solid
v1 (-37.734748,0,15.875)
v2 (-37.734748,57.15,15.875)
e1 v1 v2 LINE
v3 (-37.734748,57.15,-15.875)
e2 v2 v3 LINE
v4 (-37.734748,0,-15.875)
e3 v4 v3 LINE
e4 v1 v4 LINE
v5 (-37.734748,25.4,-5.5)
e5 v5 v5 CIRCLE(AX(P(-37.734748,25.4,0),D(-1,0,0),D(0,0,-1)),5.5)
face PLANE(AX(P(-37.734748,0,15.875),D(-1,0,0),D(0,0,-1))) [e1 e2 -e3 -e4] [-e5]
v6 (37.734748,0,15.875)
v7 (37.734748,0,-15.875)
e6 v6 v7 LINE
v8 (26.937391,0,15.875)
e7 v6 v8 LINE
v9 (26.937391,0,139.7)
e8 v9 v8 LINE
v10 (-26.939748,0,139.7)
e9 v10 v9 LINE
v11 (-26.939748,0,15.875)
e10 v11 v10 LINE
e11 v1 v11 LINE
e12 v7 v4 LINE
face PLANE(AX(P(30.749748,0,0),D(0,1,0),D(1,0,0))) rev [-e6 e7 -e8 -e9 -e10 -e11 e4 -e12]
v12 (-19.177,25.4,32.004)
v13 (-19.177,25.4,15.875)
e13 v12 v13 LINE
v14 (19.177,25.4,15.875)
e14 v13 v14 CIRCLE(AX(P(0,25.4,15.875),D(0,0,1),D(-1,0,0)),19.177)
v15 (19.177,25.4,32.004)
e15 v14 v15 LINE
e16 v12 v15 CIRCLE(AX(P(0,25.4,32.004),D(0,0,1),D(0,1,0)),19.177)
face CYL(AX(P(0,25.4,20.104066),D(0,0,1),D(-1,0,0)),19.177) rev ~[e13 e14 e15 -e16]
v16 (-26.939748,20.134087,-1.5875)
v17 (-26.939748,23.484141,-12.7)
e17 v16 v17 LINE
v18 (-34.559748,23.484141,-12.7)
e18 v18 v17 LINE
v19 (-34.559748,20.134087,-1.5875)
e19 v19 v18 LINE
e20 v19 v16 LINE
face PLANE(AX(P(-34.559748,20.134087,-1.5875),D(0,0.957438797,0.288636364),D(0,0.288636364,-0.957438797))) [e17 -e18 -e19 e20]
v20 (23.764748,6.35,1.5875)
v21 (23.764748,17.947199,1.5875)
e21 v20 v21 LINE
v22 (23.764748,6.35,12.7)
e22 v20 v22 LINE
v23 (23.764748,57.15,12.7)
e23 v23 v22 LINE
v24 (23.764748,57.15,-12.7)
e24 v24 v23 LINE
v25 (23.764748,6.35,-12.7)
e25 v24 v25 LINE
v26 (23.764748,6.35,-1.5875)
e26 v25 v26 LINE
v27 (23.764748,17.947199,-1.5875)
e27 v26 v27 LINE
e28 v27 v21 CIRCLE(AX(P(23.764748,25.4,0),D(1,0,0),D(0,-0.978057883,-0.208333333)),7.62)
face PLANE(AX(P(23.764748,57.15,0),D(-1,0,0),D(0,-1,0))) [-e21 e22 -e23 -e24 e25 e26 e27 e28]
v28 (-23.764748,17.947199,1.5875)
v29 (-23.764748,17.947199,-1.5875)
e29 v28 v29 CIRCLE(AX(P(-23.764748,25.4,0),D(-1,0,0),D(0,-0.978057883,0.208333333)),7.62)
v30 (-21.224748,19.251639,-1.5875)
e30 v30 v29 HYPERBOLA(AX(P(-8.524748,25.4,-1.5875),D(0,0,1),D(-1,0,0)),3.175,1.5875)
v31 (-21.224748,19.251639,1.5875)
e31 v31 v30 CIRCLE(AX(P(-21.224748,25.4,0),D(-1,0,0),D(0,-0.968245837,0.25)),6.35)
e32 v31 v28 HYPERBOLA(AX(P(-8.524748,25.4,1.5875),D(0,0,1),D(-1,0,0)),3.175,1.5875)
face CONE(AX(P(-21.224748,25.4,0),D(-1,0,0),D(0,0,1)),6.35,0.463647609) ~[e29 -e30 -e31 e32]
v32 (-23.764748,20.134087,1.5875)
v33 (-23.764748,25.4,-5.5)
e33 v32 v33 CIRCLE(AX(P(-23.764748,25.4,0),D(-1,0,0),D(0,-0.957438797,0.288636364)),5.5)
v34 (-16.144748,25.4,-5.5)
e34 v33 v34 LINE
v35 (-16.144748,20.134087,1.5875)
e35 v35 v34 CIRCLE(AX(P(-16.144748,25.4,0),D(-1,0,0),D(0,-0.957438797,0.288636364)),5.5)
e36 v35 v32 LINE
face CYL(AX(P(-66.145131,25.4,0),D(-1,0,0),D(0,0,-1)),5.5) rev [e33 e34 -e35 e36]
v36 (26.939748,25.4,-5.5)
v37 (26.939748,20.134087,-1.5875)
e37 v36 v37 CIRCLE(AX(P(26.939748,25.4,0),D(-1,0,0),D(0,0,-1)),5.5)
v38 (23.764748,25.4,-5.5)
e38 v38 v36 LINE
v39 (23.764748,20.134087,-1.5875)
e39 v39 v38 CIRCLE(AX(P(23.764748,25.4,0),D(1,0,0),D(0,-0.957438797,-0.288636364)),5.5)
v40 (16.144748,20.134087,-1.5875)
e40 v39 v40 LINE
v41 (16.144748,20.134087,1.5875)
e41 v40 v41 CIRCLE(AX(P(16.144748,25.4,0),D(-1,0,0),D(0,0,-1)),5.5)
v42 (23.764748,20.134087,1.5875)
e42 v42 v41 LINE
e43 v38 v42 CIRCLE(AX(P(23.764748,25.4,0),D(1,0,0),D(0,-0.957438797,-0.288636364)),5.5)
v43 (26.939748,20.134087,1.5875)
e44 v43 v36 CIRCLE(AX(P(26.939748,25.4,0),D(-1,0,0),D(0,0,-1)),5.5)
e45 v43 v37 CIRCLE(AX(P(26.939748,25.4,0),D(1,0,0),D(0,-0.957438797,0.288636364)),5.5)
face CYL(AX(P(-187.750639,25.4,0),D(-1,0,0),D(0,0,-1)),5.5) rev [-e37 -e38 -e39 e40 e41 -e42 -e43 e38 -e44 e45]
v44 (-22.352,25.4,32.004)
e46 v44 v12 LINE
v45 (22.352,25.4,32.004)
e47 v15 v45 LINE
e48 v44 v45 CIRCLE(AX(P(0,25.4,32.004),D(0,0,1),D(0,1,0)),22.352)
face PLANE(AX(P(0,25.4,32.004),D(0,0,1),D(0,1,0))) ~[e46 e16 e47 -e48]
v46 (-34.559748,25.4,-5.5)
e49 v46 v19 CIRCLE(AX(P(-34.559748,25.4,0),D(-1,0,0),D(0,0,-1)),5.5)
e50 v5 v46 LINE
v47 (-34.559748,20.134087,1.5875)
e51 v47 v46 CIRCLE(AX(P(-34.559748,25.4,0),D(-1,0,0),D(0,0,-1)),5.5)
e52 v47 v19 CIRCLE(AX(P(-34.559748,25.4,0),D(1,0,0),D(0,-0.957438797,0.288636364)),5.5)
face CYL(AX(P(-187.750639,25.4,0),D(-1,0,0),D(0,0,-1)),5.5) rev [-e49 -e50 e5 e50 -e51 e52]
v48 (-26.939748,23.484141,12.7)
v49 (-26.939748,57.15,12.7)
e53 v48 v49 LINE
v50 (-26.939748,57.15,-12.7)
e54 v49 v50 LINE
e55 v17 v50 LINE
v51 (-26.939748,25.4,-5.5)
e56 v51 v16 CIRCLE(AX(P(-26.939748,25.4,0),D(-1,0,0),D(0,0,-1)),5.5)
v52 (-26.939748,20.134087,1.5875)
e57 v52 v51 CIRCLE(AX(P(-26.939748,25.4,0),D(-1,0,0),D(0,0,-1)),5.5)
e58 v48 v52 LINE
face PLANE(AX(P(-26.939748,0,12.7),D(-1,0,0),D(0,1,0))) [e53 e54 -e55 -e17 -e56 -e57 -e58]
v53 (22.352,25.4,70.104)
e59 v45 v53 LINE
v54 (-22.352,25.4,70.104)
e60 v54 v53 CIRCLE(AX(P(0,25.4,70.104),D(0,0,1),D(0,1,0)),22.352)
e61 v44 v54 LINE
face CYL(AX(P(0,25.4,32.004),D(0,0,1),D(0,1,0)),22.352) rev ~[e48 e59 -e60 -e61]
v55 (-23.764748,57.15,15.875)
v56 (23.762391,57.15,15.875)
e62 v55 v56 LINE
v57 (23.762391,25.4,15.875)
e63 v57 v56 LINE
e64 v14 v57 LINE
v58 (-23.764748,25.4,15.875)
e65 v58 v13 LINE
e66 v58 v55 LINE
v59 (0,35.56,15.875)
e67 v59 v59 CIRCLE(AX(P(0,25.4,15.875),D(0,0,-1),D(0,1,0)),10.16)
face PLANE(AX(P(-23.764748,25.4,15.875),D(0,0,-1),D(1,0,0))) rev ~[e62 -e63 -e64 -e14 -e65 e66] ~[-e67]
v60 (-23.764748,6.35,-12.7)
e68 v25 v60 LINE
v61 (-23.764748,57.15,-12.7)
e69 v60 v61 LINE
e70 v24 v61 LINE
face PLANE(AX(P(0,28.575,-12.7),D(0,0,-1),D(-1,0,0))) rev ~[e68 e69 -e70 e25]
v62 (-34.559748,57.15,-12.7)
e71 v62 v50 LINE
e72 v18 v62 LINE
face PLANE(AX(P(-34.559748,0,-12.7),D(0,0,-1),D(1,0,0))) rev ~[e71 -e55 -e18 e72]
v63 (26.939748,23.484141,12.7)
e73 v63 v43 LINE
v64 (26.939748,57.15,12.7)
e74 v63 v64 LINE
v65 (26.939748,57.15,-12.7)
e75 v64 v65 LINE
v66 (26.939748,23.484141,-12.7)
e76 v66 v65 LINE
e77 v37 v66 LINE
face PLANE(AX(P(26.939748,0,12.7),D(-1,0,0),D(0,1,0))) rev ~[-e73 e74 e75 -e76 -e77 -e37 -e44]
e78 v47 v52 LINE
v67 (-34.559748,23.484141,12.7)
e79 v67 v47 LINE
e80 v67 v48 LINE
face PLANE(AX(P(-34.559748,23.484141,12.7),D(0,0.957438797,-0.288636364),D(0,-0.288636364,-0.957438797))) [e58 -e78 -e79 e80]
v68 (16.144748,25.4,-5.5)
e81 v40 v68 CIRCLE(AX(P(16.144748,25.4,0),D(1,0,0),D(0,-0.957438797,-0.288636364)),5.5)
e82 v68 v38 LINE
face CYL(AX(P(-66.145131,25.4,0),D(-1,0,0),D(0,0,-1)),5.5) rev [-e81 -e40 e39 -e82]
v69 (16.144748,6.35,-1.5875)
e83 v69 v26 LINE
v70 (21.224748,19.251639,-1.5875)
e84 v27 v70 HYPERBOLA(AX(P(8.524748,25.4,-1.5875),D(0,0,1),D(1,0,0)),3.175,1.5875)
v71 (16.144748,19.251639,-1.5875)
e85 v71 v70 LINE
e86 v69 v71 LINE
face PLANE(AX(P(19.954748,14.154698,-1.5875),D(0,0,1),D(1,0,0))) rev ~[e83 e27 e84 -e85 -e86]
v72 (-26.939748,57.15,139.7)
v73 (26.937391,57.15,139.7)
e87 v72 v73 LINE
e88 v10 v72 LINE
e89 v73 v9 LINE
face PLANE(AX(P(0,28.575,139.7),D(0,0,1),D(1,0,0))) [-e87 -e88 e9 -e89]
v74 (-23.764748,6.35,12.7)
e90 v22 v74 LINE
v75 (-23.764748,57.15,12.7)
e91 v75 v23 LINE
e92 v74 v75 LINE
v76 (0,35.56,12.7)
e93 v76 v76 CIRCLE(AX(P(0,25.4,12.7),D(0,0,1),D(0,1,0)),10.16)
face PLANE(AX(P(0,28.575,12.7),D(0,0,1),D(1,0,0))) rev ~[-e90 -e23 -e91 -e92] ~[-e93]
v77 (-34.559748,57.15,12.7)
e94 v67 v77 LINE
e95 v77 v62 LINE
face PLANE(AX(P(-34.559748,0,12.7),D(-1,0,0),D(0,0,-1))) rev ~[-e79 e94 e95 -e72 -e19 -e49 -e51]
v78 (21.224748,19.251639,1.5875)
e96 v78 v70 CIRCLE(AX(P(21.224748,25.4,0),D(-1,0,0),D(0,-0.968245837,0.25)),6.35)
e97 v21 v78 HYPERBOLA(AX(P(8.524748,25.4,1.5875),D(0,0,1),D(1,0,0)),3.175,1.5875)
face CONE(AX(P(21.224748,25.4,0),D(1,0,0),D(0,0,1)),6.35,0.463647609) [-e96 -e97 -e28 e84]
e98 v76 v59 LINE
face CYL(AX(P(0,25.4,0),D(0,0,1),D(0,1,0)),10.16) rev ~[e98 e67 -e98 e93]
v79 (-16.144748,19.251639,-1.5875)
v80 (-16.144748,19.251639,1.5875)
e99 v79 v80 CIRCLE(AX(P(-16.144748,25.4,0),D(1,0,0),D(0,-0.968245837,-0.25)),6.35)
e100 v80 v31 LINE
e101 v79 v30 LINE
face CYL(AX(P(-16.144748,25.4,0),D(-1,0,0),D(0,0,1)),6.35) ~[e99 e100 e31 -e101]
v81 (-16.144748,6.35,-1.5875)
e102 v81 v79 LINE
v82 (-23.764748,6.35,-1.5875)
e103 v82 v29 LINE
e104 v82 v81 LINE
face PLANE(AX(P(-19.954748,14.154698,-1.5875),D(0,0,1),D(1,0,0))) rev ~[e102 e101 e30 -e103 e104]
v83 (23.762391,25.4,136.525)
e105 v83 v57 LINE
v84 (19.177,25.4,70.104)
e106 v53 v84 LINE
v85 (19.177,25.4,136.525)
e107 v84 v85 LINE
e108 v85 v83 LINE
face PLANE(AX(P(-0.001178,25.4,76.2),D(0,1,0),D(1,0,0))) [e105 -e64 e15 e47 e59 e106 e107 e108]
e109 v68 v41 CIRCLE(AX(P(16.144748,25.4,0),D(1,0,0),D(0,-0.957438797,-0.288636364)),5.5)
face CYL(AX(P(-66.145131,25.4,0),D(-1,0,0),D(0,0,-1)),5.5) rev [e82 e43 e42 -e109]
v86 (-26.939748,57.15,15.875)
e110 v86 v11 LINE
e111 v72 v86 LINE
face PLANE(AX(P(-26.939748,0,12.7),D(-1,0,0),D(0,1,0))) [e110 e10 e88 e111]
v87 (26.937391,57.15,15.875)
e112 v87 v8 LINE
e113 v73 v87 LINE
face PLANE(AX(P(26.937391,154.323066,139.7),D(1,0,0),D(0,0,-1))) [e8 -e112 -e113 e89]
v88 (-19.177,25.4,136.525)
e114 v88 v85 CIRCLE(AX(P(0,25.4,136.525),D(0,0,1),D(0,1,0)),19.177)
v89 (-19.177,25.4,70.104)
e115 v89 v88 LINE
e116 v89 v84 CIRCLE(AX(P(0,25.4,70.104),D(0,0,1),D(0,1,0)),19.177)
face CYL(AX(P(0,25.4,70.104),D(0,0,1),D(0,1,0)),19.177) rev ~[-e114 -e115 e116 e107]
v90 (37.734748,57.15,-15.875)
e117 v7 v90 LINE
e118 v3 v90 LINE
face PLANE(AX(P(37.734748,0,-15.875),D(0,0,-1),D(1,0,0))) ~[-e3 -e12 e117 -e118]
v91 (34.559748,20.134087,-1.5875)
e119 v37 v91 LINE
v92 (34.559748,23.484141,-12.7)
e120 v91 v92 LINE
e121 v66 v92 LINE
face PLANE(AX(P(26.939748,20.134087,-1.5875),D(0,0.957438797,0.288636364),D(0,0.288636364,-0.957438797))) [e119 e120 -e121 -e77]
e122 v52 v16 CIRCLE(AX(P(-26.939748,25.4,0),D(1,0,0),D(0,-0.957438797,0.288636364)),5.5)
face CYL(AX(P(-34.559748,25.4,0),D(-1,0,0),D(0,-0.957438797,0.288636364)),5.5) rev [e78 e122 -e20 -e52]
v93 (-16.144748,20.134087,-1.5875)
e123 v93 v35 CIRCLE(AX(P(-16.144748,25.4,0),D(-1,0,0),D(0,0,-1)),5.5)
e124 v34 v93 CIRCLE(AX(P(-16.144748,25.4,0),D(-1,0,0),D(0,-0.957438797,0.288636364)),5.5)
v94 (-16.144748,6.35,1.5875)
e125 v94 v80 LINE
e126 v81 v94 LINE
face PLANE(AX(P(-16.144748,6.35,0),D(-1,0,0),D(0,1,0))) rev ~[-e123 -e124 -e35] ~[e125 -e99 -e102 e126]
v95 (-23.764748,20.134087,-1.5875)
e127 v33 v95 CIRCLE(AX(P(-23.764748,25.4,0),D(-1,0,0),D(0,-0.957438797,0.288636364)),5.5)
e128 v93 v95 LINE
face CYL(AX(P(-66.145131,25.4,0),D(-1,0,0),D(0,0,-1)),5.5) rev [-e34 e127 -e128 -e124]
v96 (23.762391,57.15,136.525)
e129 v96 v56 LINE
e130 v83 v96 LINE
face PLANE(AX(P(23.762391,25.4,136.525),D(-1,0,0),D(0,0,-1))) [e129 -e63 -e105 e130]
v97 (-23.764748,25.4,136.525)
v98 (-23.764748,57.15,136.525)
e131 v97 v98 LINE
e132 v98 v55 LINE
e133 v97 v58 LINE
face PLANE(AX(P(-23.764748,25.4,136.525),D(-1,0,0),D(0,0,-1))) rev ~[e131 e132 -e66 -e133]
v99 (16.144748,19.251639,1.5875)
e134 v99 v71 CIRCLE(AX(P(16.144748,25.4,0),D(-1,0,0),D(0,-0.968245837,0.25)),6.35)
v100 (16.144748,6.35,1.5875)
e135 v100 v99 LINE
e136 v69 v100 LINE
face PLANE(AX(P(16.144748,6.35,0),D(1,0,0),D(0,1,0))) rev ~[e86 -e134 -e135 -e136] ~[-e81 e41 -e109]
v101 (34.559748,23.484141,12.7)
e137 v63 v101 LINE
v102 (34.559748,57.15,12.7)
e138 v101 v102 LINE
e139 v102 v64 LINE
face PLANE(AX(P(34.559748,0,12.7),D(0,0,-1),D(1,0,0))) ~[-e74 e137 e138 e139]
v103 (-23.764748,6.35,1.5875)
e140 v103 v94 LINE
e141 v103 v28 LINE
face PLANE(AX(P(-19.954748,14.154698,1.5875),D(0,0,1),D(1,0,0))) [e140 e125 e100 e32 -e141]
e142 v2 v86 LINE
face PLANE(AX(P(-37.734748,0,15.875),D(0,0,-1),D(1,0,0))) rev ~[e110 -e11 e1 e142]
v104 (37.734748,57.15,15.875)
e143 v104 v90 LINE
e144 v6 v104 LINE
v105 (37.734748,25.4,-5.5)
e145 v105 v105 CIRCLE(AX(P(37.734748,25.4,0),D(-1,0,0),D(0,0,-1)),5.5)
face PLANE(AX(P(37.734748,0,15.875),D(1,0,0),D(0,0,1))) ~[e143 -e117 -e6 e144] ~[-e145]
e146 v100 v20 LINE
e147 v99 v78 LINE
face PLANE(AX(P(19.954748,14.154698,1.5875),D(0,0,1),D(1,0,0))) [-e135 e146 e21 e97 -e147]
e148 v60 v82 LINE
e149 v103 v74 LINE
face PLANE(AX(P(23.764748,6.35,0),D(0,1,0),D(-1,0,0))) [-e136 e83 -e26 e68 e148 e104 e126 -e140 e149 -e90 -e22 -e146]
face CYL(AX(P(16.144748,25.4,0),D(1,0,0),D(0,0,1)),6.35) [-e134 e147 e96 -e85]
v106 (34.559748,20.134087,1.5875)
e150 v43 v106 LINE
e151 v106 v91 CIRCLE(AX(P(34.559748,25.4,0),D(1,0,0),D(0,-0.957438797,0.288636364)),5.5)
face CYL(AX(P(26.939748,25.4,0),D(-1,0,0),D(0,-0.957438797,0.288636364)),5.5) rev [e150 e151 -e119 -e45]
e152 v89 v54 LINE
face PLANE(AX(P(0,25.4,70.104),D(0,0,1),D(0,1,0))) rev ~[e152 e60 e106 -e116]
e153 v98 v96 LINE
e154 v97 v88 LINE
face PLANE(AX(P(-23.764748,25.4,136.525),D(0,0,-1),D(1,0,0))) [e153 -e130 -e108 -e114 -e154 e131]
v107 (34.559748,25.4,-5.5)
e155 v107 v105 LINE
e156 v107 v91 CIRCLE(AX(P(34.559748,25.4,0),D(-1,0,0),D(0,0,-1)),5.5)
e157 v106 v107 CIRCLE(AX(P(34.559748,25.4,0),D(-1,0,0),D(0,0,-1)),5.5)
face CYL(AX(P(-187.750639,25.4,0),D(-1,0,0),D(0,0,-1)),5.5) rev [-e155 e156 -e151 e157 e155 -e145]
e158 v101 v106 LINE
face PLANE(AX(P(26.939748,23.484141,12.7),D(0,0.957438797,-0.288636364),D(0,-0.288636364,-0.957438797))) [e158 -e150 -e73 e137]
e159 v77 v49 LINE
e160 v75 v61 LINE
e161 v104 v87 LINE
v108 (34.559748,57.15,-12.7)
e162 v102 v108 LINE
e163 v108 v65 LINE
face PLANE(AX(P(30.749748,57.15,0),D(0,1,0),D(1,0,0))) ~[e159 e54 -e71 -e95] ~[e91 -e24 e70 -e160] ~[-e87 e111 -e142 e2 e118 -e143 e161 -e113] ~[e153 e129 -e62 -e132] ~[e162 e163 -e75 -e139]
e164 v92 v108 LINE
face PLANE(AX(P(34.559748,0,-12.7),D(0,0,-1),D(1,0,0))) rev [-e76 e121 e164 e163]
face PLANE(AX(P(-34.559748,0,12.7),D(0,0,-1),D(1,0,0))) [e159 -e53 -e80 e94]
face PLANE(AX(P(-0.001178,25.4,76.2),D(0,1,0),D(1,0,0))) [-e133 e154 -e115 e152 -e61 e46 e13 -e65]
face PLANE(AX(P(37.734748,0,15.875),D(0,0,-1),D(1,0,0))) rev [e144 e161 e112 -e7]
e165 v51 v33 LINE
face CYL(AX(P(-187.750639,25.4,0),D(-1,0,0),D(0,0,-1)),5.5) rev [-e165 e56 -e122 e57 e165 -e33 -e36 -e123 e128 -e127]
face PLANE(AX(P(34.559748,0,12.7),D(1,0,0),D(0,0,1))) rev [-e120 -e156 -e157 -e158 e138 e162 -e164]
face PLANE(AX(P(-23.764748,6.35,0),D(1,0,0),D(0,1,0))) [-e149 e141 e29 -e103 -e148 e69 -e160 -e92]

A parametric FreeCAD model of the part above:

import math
import FreeCAD as App
import Part
import Sketcher
Q = App.Units.Quantity


def add_polygon(sketch, points):
    """Adds a closed chain of lines whose ends are joined by coincident constraints."""
    first, n = sketch.GeometryCount, len(points)
    for a, b in zip(points, points[1:] + points[:1]):
        sketch.addGeometry(Part.LineSegment(App.Vector(*a, 0), App.Vector(*b, 0)), False)
    for i in range(n):
        sketch.addConstraint(Sketcher.Constraint("Coincident", first + i, 2, first + (i + 1) % n, 1))

doc = App.newDocument("Part")
body = doc.addObject("PartDesign::Body", "Body")

sketch1 = body.newObject("Sketcher::SketchObject", "Sketch")
sketch1.AttachmentSupport = (doc.getObject("XY_Plane"), [""])
sketch1.MapMode = "FlatFace"
add_polygon(sketch1, [(-26.9, 0), (26.9, 0), (26.9, 57.1), (23.8, 57.1), (23.8, 6.3), (-23.8, 6.3), (-23.8, 57.1), (-26.9, 57.1)])
sketch1.addConstraint([
    Sketcher.Constraint("Horizontal", 0),
    Sketcher.Constraint("Vertical", 1),
    Sketcher.Constraint("Horizontal", 2),
    Sketcher.Constraint("Vertical", 3),
    Sketcher.Constraint("Horizontal", 4),
    Sketcher.Constraint("Vertical", 5),
    Sketcher.Constraint("Horizontal", 6),
    Sketcher.Constraint("Vertical", 7),
    Sketcher.Constraint("Symmetric", 0, 2, 7, 2, -1, 1),
    Sketcher.Constraint("Symmetric", 2, 2, 5, 2, -2),
    Sketcher.Constraint("DistanceY", 3, 2, 3, 1, Q("2 in")),
    Sketcher.Constraint("DistanceY", 1, 1, 1, 2, Q("2.25 in")),
    Sketcher.Constraint("DistanceX", 2, 2, 2, 1, Q("0.125 in")),
    Sketcher.Constraint("DistanceX", 0, 1, 0, 2, Q("53.879496 mm")),
])
pad1 = body.newObject("PartDesign::Pad", "Pad")
pad1.Profile = sketch1
pad1.Length = Q("1 in")
pad1.Midplane = True

sketch2 = body.newObject("Sketcher::SketchObject", "Sketch001")
sketch2.AttachmentSupport = (doc.getObject("XY_Plane"), [""])
sketch2.MapMode = "FlatFace"
sketch2.AttachmentOffset = App.Placement(App.Vector(0, 0, -0.5 * 25.4), App.Rotation())
add_polygon(sketch2, [(27, 57), (27, 0), (-27, 0), (-27, 57)])
sketch2.addConstraint([
    Sketcher.Constraint("Vertical", 0),
    Sketcher.Constraint("Horizontal", 1),
    Sketcher.Constraint("Vertical", 2),
    Sketcher.Constraint("Horizontal", 3),
    Sketcher.Constraint("Symmetric", 0, 2, 1, 2, -1, 1),
    Sketcher.Constraint("DistanceY", 0, 2, 0, 1, Q("2.25 in")),
    Sketcher.Constraint("DistanceX", 1, 2, 1, 1, Q("53.879496 mm")),
])
pad2 = body.newObject("PartDesign::Pad", "Pad001")
pad2.Profile = sketch2
pad2.Length = Q("0.125 in")
pad2.Reversed = True

sketch3 = body.newObject("Sketcher::SketchObject", "Sketch002")
sketch3.AttachmentSupport = (doc.getObject("XY_Plane"), [""])
sketch3.MapMode = "FlatFace"
add_polygon(sketch3, [(-23.8, 25.4), (-16.1, 25.4), (-16.1, 31.8), (-21.2, 31.8), (-23.8, 33)])
add_polygon(sketch3, [(23.8, 25.4), (23.8, 33), (21.2, 31.8), (16.1, 31.8), (16.1, 25.4)])
sketch3.addGeometry(Part.LineSegment(App.Vector(-23.8, 25.4, 0), App.Vector(23.8, 25.4, 0)), True)
sketch3.addConstraint([
    Sketcher.Constraint("Horizontal", 0),
    Sketcher.Constraint("Vertical", 1),
    Sketcher.Constraint("Horizontal", 2),
    Sketcher.Constraint("Vertical", 4),
    Sketcher.Constraint("Vertical", 5),
    Sketcher.Constraint("Horizontal", 7),
    Sketcher.Constraint("Vertical", 8),
    Sketcher.Constraint("Horizontal", 9),
    Sketcher.Constraint("Horizontal", 10),
    Sketcher.Constraint("Coincident", 10, 1, 4, 2),
    Sketcher.Constraint("Coincident", 10, 2, 9, 2),
    Sketcher.Constraint("Symmetric", 3, 2, 5, 2, -2),
    Sketcher.Constraint("Symmetric", 2, 2, 6, 2, -2),
    Sketcher.Constraint("Equal", 2, 7),
    Sketcher.Constraint("Equal", 9, 4),
    Sketcher.Constraint("DistanceX", 0, 1, 0, 2, Q("0.3 in")),
    Sketcher.Constraint("DistanceX", 2, 2, 2, 1, Q("0.2 in")),
    Sketcher.Constraint("DistanceY", -1, 1, 0, 2, Q("1 in")),
    Sketcher.Constraint("DistanceY", 1, 1, 1, 2, Q("0.25 in")),
    Sketcher.Constraint("DistanceX", 10, 1, 10, 2, Q("47.529496 mm")),
])
revolution = body.newObject("PartDesign::Revolution", "Revolution")
revolution.Profile = sketch3
revolution.ReferenceAxis = (sketch3, ["Axis0"])
revolution.Angle = 360

sketch4 = body.newObject("Sketcher::SketchObject", "Sketch003")
sketch4.AttachmentSupport = (doc.getObject("YZ_Plane"), [""])
sketch4.MapMode = "FlatFace"
sketch4.addGeometry(Part.Circle(App.Vector(25, 0, 0), App.Vector(0, 0, 1), 6), False)
sketch4.addConstraint([
    Sketcher.Constraint("PointOnObject", 0, 3, -1),
    Sketcher.Constraint("DistanceX", -1, 1, 0, 3, Q("1 in")),
    Sketcher.Constraint("Diameter", 0, Q("11 mm")),
])
pocket1 = body.newObject("PartDesign::Pocket", "Pocket")
pocket1.Profile = sketch4
pocket1.Type = "ThroughAll"
pocket1.Midplane = True

sketch5 = body.newObject("Sketcher::SketchObject", "Sketch004")
sketch5.AttachmentSupport = (doc.getObject("XZ_Plane"), [""])
sketch5.MapMode = "FlatFace"
add_polygon(sketch5, [(-26.9, -15.9), (-26.9, -41.3), (26.9, -41.3), (26.9, -15.9)])
sketch5.addGeometry(Part.Circle(App.Vector(-17.5, -28.6, 0), App.Vector(0, 0, 1), 3.5), False)
sketch5.addGeometry(Part.Circle(App.Vector(7.9, -28.6, 0), App.Vector(0, 0, 1), 3.5), False)
sketch5.addConstraint([
    Sketcher.Constraint("Vertical", 0),
    Sketcher.Constraint("Horizontal", 1),
    Sketcher.Constraint("Vertical", 2),
    Sketcher.Constraint("Horizontal", 3),
    Sketcher.Constraint("Equal", 4, 5),
    Sketcher.Constraint("Horizontal", 4, 3, 5, 3),
    Sketcher.Constraint("DistanceY", 0, 2, 0, 1, Q("1 in")),
    Sketcher.Constraint("Diameter", 4, Q("0.275 in")),
    Sketcher.Constraint("DistanceX", 4, 3, 5, 3, Q("1 in")),
    Sketcher.Constraint("DistanceY", 0, 2, 4, 3, Q("0.5 in")),
    Sketcher.Constraint("DistanceX", 5, 3, 1, 2, Q("0.75 in")),
    Sketcher.Constraint("DistanceY", 4, 3, -1, 1, Q("1.125 in")),
    Sketcher.Constraint("DistanceX", 1, 1, 1, 2, Q("53.879496 mm")),
    Sketcher.Constraint("DistanceX", 0, 2, -1, 1, Q("26.939748 mm")),
])
pad3 = body.newObject("PartDesign::Pad", "Pad002")
pad3.Profile = sketch5
pad3.Length = Q("0.25 in")
pad3.Reversed = True

sketch6 = body.newObject("Sketcher::SketchObject", "Sketch005")
sketch6.AttachmentSupport = (doc.getObject("XY_Plane"), [""])
sketch6.MapMode = "FlatFace"
add_polygon(sketch6, [(-24, 22), (-24, 6), (-16, 6), (-16, 22)])
add_polygon(sketch6, [(16, 22), (16, 6), (24, 6), (24, 22)])
sketch6.addConstraint([
    Sketcher.Constraint("Vertical", 0),
    Sketcher.Constraint("Horizontal", 1),
    Sketcher.Constraint("Vertical", 2),
    Sketcher.Constraint("Horizontal", 3),
    Sketcher.Constraint("Vertical", 4),
    Sketcher.Constraint("Horizontal", 5),
    Sketcher.Constraint("Vertical", 6),
    Sketcher.Constraint("Horizontal", 7),
    Sketcher.Constraint("Symmetric", 1, 2, 4, 2, -2),
    Sketcher.Constraint("Symmetric", 3, 2, 6, 2, -2),
    Sketcher.Constraint("DistanceX", 1, 1, 1, 2, Q("0.3 in")),
    Sketcher.Constraint("DistanceY", -1, 1, 0, 2, Q("0.25 in")),
    Sketcher.Constraint("DistanceY", 0, 2, 0, 1, Q("15.609397 mm")),
    Sketcher.Constraint("DistanceX", 0, 2, -1, 1, Q("23.764748 mm")),
])
pad4 = body.newObject("PartDesign::Pad", "Pad003")
pad4.Profile = sketch6
pad4.Length = Q("0.125 in")
pad4.Midplane = True

sketch7 = body.newObject("Sketcher::SketchObject", "Sketch006")
sketch7.AttachmentSupport = (doc.getObject("XY_Plane"), [""])
sketch7.MapMode = "FlatFace"
sketch7.AttachmentOffset = App.Placement(App.Vector(0, 0, 0.5 * 25.4), App.Rotation())
add_polygon(sketch7, [(-27, 57), (-27, 0), (27, 0), (27, 57)])
sketch7.addConstraint([
    Sketcher.Constraint("Vertical", 0),
    Sketcher.Constraint("Horizontal", 1),
    Sketcher.Constraint("Vertical", 2),
    Sketcher.Constraint("Horizontal", 3),
    Sketcher.Constraint("Symmetric", 0, 2, 1, 2, -1, 1),
    Sketcher.Constraint("DistanceY", 0, 2, 0, 1, Q("2.25 in")),
    Sketcher.Constraint("DistanceX", 1, 1, 1, 2, Q("53.879496 mm")),
])
pad5 = body.newObject("PartDesign::Pad", "Pad004")
pad5.Profile = sketch7
pad5.Length = Q("5 in")

sketch8 = body.newObject("Sketcher::SketchObject", "Sketch007")
sketch8.AttachmentSupport = (doc.getObject("YZ_Plane"), [""])
sketch8.MapMode = "FlatFace"
add_polygon(sketch8, [(47.8, 70.1), (44.6, 70.1), (44.6, 136.5), (25.4, 136.5), (25.4, 0), (35.6, 0), (35.6, 20.1), (44.6, 20.1), (44.6, 32), (47.8, 32)])
sketch8.addGeometry(Part.LineSegment(App.Vector(25.4, 0, 0), App.Vector(25.4, 136.5, 0)), True)
sketch8.addConstraint([
    Sketcher.Constraint("Horizontal", 0),
    Sketcher.Constraint("Vertical", 1),
    Sketcher.Constraint("Horizontal", 2),
    Sketcher.Constraint("Vertical", 3),
    Sketcher.Constraint("Horizontal", 4),
    Sketcher.Constraint("Vertical", 5),
    Sketcher.Constraint("Horizontal", 6),
    Sketcher.Constraint("Vertical", 7),
    Sketcher.Constraint("Horizontal", 8),
    Sketcher.Constraint("Vertical", 9),
    Sketcher.Constraint("Vertical", 10),
    Sketcher.Constraint("Coincident", 10, 1, 3, 2),
    Sketcher.Constraint("PointOnObject", 3, 2, -1),
    Sketcher.Constraint("Horizontal", 1, 2, 10, 2),
    Sketcher.Constraint("Vertical", 1, 2, 6, 2),
    Sketcher.Constraint("DistanceX", 4, 1, 4, 2, Q("0.4 in")),
    Sketcher.Constraint("DistanceY", 9, 1, 9, 2, Q("1.5 in")),
    Sketcher.Constraint("DistanceX", -1, 1, 2, 2, Q("1 in")),
    Sketcher.Constraint("DistanceX", 0, 2, 0, 1, Q("0.125 in")),
    Sketcher.Constraint("DistanceX", 2, 2, 2, 1, Q("0.755 in")),
    Sketcher.Constraint("DistanceY", 1, 1, 1, 2, Q("2.615 in")),
    Sketcher.Constraint("DistanceY", 3, 2, 3, 1, Q("5.375 in")),
    Sketcher.Constraint("DistanceY", 5, 1, 5, 2, Q("20.104066 mm")),
])
groove = body.newObject("PartDesign::Groove", "Groove")
groove.Profile = sketch8
groove.ReferenceAxis = (sketch8, ["Axis0"])
groove.Angle = 360

sketch9 = body.newObject("Sketcher::SketchObject", "Sketch008")
sketch9.AttachmentSupport = (doc.getObject("XZ_Plane"), [""])
sketch9.MapMode = "FlatFace"
add_polygon(sketch9, [(-26.939748, 15.470939), (-26.939748, 139.7), (-26.942105, 139.7), (-26.942105, 15.470939)])
add_polygon(sketch9, [(26.939748, 15.470939), (26.939748, 139.7), (26.937391, 139.7), (26.937391, 15.470939)])
sketch9.addConstraint([
    Sketcher.Constraint("Vertical", 0),
    Sketcher.Constraint("Horizontal", 1),
    Sketcher.Constraint("Vertical", 2),
    Sketcher.Constraint("Horizontal", 3),
    Sketcher.Constraint("Vertical", 4),
    Sketcher.Constraint("Horizontal", 5),
    Sketcher.Constraint("Vertical", 6),
    Sketcher.Constraint("Horizontal", 7),
    Sketcher.Constraint("Symmetric", 0, 2, 4, 2, -2),
    Sketcher.Constraint("Horizontal", 3, 2, 6, 2),
    Sketcher.Constraint("Equal", 3, 5),
    Sketcher.Constraint("DistanceY", -1, 1, 0, 2, Q("5.5 in")),
    Sketcher.Constraint("DistanceY", 0, 1, 0, 2, Q("124.229061 mm")),
    Sketcher.Constraint("DistanceX", 1, 2, 1, 1, Q("0.002357 mm")),
    Sketcher.Constraint("DistanceX", 0, 2, -1, 1, Q("26.939748 mm")),
])
pocket2 = body.newObject("PartDesign::Pocket", "Pocket001")
pocket2.Profile = sketch9
pocket2.Type = "ThroughAll"
pocket2.Midplane = True

sketch10 = body.newObject("Sketcher::SketchObject", "Sketch009")
sketch10.AttachmentSupport = (doc.getObject("XZ_Plane"), [""])
sketch10.MapMode = "FlatFace"
sketch10.AttachmentOffset = App.Placement(App.Vector(0, 0, -1 * 25.4), App.Rotation())
add_polygon(sketch10, [(-24, 16), (-24, 137), (24, 137), (24, 16)])
sketch10.addConstraint([
    Sketcher.Constraint("Vertical", 0),
    Sketcher.Constraint("Horizontal", 1),
    Sketcher.Constraint("Vertical", 2),
    Sketcher.Constraint("Horizontal", 3),
    Sketcher.Constraint("DistanceY", 0, 1, 0, 2, Q("4.75 in")),
    Sketcher.Constraint("DistanceY", -1, 1, 0, 2, Q("5.375 in")),
    Sketcher.Constraint("DistanceX", 1, 1, 1, 2, Q("47.527139 mm")),
    Sketcher.Constraint("DistanceX", 0, 2, -1, 1, Q("23.764748 mm")),
])
pocket3 = body.newObject("PartDesign::Pocket", "Pocket002")
pocket3.Profile = sketch10
pocket3.Length = Q("1.25 in")

sketch11 = body.newObject("Sketcher::SketchObject", "Sketch010")
sketch11.AttachmentSupport = (doc.getObject("XY_Plane"), [""])
sketch11.MapMode = "FlatFace"
sketch11.AttachmentOffset = App.Placement(App.Vector(0, 0, 20.104066), App.Rotation())
sketch11.addGeometry([
    Part.LineSegment(App.Vector(-10, 25, 0), App.Vector(-19, 25, 0)),
    Part.ArcOfCircle(Part.Circle(App.Vector(0, 25, 0), App.Vector(0, 0, 1), 19), math.radians(180), math.radians(360)),
    Part.LineSegment(App.Vector(19, 25, 0), App.Vector(10, 25, 0)),
    Part.ArcOfCircle(Part.Circle(App.Vector(0, 25, 0), App.Vector(0, 0, 1), 10), math.radians(180), math.radians(360)),
], False)
sketch11.addConstraint([
    Sketcher.Constraint("Coincident", 0, 2, 1, 1),
    Sketcher.Constraint("Coincident", 1, 2, 2, 1),
    Sketcher.Constraint("Coincident", 2, 2, 3, 2),
    Sketcher.Constraint("Coincident", 3, 1, 0, 1),
    Sketcher.Constraint("Horizontal", 0),
    Sketcher.Constraint("Horizontal", 2),
    Sketcher.Constraint("Coincident", 3, 3, 1, 3),
    Sketcher.Constraint("Symmetric", 0, 2, 1, 2, -2),
    Sketcher.Constraint("Horizontal", 3, 3, 0, 2),
    Sketcher.Constraint("Radius", 3, Q("0.4 in")),
    Sketcher.Constraint("DistanceY", -1, 1, 1, 3, Q("1 in")),
    Sketcher.Constraint("Radius", 1, Q("0.755 in")),
])
pocket4 = body.newObject("PartDesign::Pocket", "Pocket003")
pocket4.Profile = sketch11
pocket4.Length = 4.229066

sketch12 = body.newObject("Sketcher::SketchObject", "Sketch011")
sketch12.AttachmentSupport = (doc.getObject("XZ_Plane"), [""])
sketch12.MapMode = "FlatFace"
sketch12.AttachmentOffset = App.Placement(App.Vector(0, 0, -0.25 * 25.4), App.Rotation())
add_polygon(sketch12, [(-27, -41), (-27, -16), (27, -16), (27, -41)])
sketch12.addConstraint([
    Sketcher.Constraint("Vertical", 0),
    Sketcher.Constraint("Horizontal", 1),
    Sketcher.Constraint("Vertical", 2),
    Sketcher.Constraint("Horizontal", 3),
    Sketcher.Constraint("DistanceY", 0, 1, 0, 2, Q("1 in")),
    Sketcher.Constraint("DistanceY", 0, 2, -1, 1, Q("0.625 in")),
    Sketcher.Constraint("DistanceX", 1, 1, 1, 2, Q("53.879496 mm")),
    Sketcher.Constraint("DistanceX", 0, 2, -1, 1, Q("26.939748 mm")),
])
pocket5 = body.newObject("PartDesign::Pocket", "Pocket004")
pocket5.Profile = sketch12
pocket5.Type = "ThroughAll"
pocket5.Reversed = True

sketch13 = body.newObject("Sketcher::SketchObject", "Sketch012")
sketch13.AttachmentSupport = (doc.getObject("XZ_Plane"), [""])
sketch13.MapMode = "FlatFace"
add_polygon(sketch13, [(-38, -16), (-38, 16), (-24, 16), (-24, -16)])
add_polygon(sketch13, [(-27, 13), (-35, 13), (-35, -13), (-27, -13)])
sketch13.addConstraint([
    Sketcher.Constraint("Vertical", 0),
    Sketcher.Constraint("Horizontal", 1),
    Sketcher.Constraint("Vertical", 2),
    Sketcher.Constraint("Horizontal", 3),
    Sketcher.Constraint("Horizontal", 4),
    Sketcher.Constraint("Vertical", 5),
    Sketcher.Constraint("Horizontal", 6),
    Sketcher.Constraint("Vertical", 7),
    Sketcher.Constraint("DistanceY", 5, 2, 5, 1, Q("1 in")),
    Sketcher.Constraint("DistanceX", 4, 2, 4, 1, Q("0.3 in")),
    Sketcher.Constraint("DistanceX", 1, 1, 1, 2, Q("0.55 in")),
    Sketcher.Constraint("DistanceY", 0, 1, 0, 2, Q("1.25 in")),
    Sketcher.Constraint("DistanceY", -1, 1, 4, 2, Q("0.5 in")),
    Sketcher.Constraint("DistanceY", -1, 1, 0, 2, Q("0.625 in")),
    Sketcher.Constraint("DistanceX", 0, 2, 4, 2, Q("0.125 in")),
    Sketcher.Constraint("DistanceX", 0, 2, -1, 1, Q("37.734748 mm")),
])
pad6 = body.newObject("PartDesign::Pad", "Pad005")
pad6.Profile = sketch13
pad6.Length = Q("2.25 in")
pad6.Reversed = True

sketch14 = body.newObject("Sketcher::SketchObject", "Sketch013")
sketch14.AttachmentSupport = (doc.getObject("YZ_Plane"), [""])
sketch14.MapMode = "FlatFace"
sketch14.AttachmentOffset = App.Placement(App.Vector(0, 0, -34.559748), App.Rotation())
sketch14.addGeometry([
    Part.LineSegment(App.Vector(23.5, -12.7, 0), App.Vector(20.1, -1.6, 0)),
    Part.ArcOfCircle(Part.Circle(App.Vector(25.4, 0, 0), App.Vector(0, 0, 1), 5.5), math.radians(163), math.radians(197)),
    Part.LineSegment(App.Vector(20.1, 1.6, 0), App.Vector(23.5, 12.7, 0)),
    Part.LineSegment(App.Vector(23.5, 12.7, 0), App.Vector(0, 12.7, 0)),
    Part.LineSegment(App.Vector(0, 12.7, 0), App.Vector(0, -12.7, 0)),
    Part.LineSegment(App.Vector(0, -12.7, 0), App.Vector(23.5, -12.7, 0)),
], False)
sketch14.addConstraint([
    Sketcher.Constraint("Tangent", 0, 2, 1, 2),
    Sketcher.Constraint("Tangent", 1, 1, 2, 1),
    Sketcher.Constraint("Coincident", 2, 2, 3, 1),
    Sketcher.Constraint("Coincident", 3, 2, 4, 1),
    Sketcher.Constraint("Coincident", 4, 2, 5, 1),
    Sketcher.Constraint("Coincident", 5, 2, 0, 1),
    Sketcher.Constraint("Horizontal", 3),
    Sketcher.Constraint("Vertical", 4),
    Sketcher.Constraint("Horizontal", 5),
    Sketcher.Constraint("Symmetric", 3, 2, 4, 2, -1, 1),
    Sketcher.Constraint("Symmetric", 0, 2, 1, 1, -1),
    Sketcher.Constraint("DistanceY", 4, 2, 4, 1, Q("1 in")),
    Sketcher.Constraint("DistanceX", -1, 1, 1, 3, Q("1 in")),
    Sketcher.Constraint("Radius", 1, Q("5.5 mm")),
    Sketcher.Constraint("DistanceY", 0, 2, -1, 1, Q("0.0625 in")),
])
pad7 = body.newObject("PartDesign::Pad", "Pad006")
pad7.Profile = sketch14
pad7.Length = Q("0.3 in")
doc.recompute()

mirrored = body.newObject("PartDesign::Mirrored", "Mirrored")
mirrored.Originals = [pad6]
mirrored.MirrorPlane = (doc.getObject("YZ_Plane"), [""])
body.Tip = mirrored

sketch15 = body.newObject("Sketcher::SketchObject", "Sketch014")
sketch15.AttachmentSupport = (doc.getObject("YZ_Plane"), [""])
sketch15.MapMode = "FlatFace"
sketch15.AttachmentOffset = App.Placement(App.Vector(0, 0, 26.939748), App.Rotation())
sketch15.addGeometry([
    Part.LineSegment(App.Vector(23.5, -12.7, 0), App.Vector(20.1, -1.6, 0)),
    Part.ArcOfCircle(Part.Circle(App.Vector(25.4, 0, 0), App.Vector(0, 0, 1), 5.5), math.radians(163), math.radians(197)),
    Part.LineSegment(App.Vector(20.1, 1.6, 0), App.Vector(23.5, 12.7, 0)),
    Part.LineSegment(App.Vector(23.5, 12.7, 0), App.Vector(0, 12.7, 0)),
    Part.LineSegment(App.Vector(0, 12.7, 0), App.Vector(0, -12.7, 0)),
    Part.LineSegment(App.Vector(0, -12.7, 0), App.Vector(23.5, -12.7, 0)),
], False)
sketch15.addConstraint([
    Sketcher.Constraint("Tangent", 0, 2, 1, 2),
    Sketcher.Constraint("Tangent", 1, 1, 2, 1),
    Sketcher.Constraint("Coincident", 2, 2, 3, 1),
    Sketcher.Constraint("Coincident", 3, 2, 4, 1),
    Sketcher.Constraint("Coincident", 4, 2, 5, 1),
    Sketcher.Constraint("Coincident", 5, 2, 0, 1),
    Sketcher.Constraint("Horizontal", 3),
    Sketcher.Constraint("Vertical", 4),
    Sketcher.Constraint("Horizontal", 5),
    Sketcher.Constraint("Symmetric", 3, 2, 4, 2, -1, 1),
    Sketcher.Constraint("Symmetric", 0, 2, 1, 1, -1),
    Sketcher.Constraint("DistanceY", 4, 2, 4, 1, Q("1 in")),
    Sketcher.Constraint("DistanceX", -1, 1, 1, 3, Q("1 in")),
    Sketcher.Constraint("Radius", 1, Q("5.5 mm")),
    Sketcher.Constraint("DistanceY", 0, 2, -1, 1, Q("0.0625 in")),
])
pad8 = body.newObject("PartDesign::Pad", "Pad007")
pad8.Profile = sketch15
pad8.Length = Q("0.3 in")

sketch16 = body.newObject("Sketcher::SketchObject", "Sketch015")
sketch16.AttachmentSupport = (doc.getObject("YZ_Plane"), [""])
sketch16.MapMode = "FlatFace"
sketch16.AttachmentOffset = App.Placement(App.Vector(0, 0, -23.764748), App.Rotation())
sketch16.addGeometry(Part.Circle(App.Vector(25, 0, 0), App.Vector(0, 0, 1), 6), False)
sketch16.addConstraint([
    Sketcher.Constraint("PointOnObject", 0, 3, -1),
    Sketcher.Constraint("DistanceX", -1, 1, 0, 3, Q("1 in")),
    Sketcher.Constraint("Diameter", 0, Q("11 mm")),
])
pocket6 = body.newObject("PartDesign::Pocket", "Pocket005")
pocket6.Profile = sketch16
pocket6.Type = "ThroughAll"
pocket6.Midplane = True

doc.recompute()
